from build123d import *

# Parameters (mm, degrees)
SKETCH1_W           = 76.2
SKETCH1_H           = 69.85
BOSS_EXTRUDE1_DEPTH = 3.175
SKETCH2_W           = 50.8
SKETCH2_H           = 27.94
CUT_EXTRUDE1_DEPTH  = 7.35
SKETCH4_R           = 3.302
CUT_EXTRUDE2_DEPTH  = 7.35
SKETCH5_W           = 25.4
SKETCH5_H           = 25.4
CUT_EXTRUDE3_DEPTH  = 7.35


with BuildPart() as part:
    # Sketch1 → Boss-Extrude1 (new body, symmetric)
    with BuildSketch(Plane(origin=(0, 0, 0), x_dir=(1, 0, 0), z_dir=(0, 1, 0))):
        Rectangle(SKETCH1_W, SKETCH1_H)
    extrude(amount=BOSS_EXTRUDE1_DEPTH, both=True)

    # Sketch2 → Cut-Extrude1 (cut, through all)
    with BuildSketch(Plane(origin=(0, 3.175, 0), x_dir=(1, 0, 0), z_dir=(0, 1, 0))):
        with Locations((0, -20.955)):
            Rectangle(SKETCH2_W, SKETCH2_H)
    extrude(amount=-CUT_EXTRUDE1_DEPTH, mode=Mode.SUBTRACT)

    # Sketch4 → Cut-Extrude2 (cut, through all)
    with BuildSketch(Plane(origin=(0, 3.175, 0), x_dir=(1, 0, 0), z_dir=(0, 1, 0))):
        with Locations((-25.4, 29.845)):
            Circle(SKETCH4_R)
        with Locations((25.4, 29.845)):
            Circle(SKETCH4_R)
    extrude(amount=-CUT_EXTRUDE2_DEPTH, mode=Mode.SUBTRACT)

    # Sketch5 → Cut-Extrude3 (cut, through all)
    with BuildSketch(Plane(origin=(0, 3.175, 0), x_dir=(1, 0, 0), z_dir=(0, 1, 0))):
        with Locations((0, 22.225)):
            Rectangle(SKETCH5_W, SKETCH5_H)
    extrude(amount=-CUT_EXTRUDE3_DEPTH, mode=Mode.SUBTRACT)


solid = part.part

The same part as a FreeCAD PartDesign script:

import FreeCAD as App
import Part
import Sketcher
from FreeCAD import Vector
Q = App.Units.Quantity


def add_polygon(sketch, points):
    """Adds a closed chain of lines whose ends are joined by coincident constraints."""
    first, n = sketch.GeometryCount, len(points)
    for a, b in zip(points, points[1:] + points[:1]):
        sketch.addGeometry(Part.LineSegment(App.Vector(*a, 0), App.Vector(*b, 0)), False)
    for i in range(n):
        sketch.addConstraint(Sketcher.Constraint("Coincident", first + i, 2, first + (i + 1) % n, 1))

doc = App.newDocument("Part")
body = doc.addObject("PartDesign::Body", "Body")

# Sketch on XZ plane
sketch1 = body.newObject("Sketcher::SketchObject", "Sketch")
sketch1.AttachmentSupport = (doc.getObject("XZ_Plane"), [""])
sketch1.MapMode = "FlatFace"
add_polygon(sketch1, [(-38, -35), (-38, 35), (38, 35), (38, -35)])  # lines 0-3
sketch1.addConstraint(Sketcher.Constraint("Vertical", 0))
sketch1.addConstraint(Sketcher.Constraint("Horizontal", 1))
sketch1.addConstraint(Sketcher.Constraint("Vertical", 2))
sketch1.addConstraint(Sketcher.Constraint("Horizontal", 3))
sketch1.addConstraint(Sketcher.Constraint("Symmetric", 0, 2, 2, 2, -1, 1))
sketch1.addConstraint(Sketcher.Constraint("DistanceX", 1, 1, 1, 2, Q("3 in")))
sketch1.addConstraint(Sketcher.Constraint("DistanceY", 0, 1, 0, 2, Q("2.75 in")))
pad1 = body.newObject("PartDesign::Pad", "Pad")
pad1.Profile = sketch1
pad1.Length = Q("0.25 in")
pad1.Midplane = True

# Sketch on XZ plane
sketch2 = body.newObject("Sketcher::SketchObject", "Sketch001")
sketch2.AttachmentSupport = (doc.getObject("XZ_Plane"), [""])
sketch2.MapMode = "FlatFace"
sketch2.AttachmentOffset = App.Placement(Vector(0, 0, -0.125 * 25.4), App.Rotation())
add_polygon(sketch2, [(-25, 7), (-25, 35), (25, 35), (25, 7)])  # lines 0-3
sketch2.addConstraint(Sketcher.Constraint("Vertical", 0))
sketch2.addConstraint(Sketcher.Constraint("Horizontal", 1))
sketch2.addConstraint(Sketcher.Constraint("Vertical", 2))
sketch2.addConstraint(Sketcher.Constraint("Horizontal", 3))
sketch2.addConstraint(Sketcher.Constraint("DistanceX", 1, 1, 1, 2, Q("2 in")))
sketch2.addConstraint(Sketcher.Constraint("DistanceY", 0, 1, 0, 2, Q("1.1 in")))
sketch2.addConstraint(Sketcher.Constraint("DistanceX", 0, 2, -1, 1, Q("1 in")))
sketch2.addConstraint(Sketcher.Constraint("DistanceY", -1, 1, 0, 2, Q("1.375 in")))
pocket1 = body.newObject("PartDesign::Pocket", "Pocket")
pocket1.Profile = sketch2
pocket1.Type = "ThroughAll"
pocket1.Reversed = True

# Sketch on XZ plane
sketch3 = body.newObject("Sketcher::SketchObject", "Sketch002")
sketch3.AttachmentSupport = (doc.getObject("XZ_Plane"), [""])
sketch3.MapMode = "FlatFace"
sketch3.AttachmentOffset = App.Placement(Vector(0, 0, -0.125 * 25.4), App.Rotation())
sketch3.addGeometry(Part.Circle(Vector(-25.4, -29.8, 0), Vector(0, 0, 1), 3.3), False)
sketch3.addGeometry(Part.Circle(Vector(25.4, -29.8, 0), Vector(0, 0, 1), 3.3), False)
sketch3.addConstraint(Sketcher.Constraint("Equal", 0, 1))
sketch3.addConstraint(Sketcher.Constraint("Symmetric", 0, 3, 1, 3, -2))
sketch3.addConstraint(Sketcher.Constraint("Diameter", 0, Q("0.26 in")))
sketch3.addConstraint(Sketcher.Constraint("DistanceX", 0, 3, -1, 1, Q("1 in")))
sketch3.addConstraint(Sketcher.Constraint("DistanceY", 0, 3, -1, 1, Q("1.175 in")))
pocket2 = body.newObject("PartDesign::Pocket", "Pocket001")
pocket2.Profile = sketch3
pocket2.Type = "ThroughAll"
pocket2.Reversed = True

# Sketch on XZ plane
sketch4 = body.newObject("Sketcher::SketchObject", "Sketch003")
sketch4.AttachmentSupport = (doc.getObject("XZ_Plane"), [""])
sketch4.MapMode = "FlatFace"
sketch4.AttachmentOffset = App.Placement(Vector(0, 0, -0.125 * 25.4), App.Rotation())
add_polygon(sketch4, [(-13, -35), (-13, -10), (13, -10), (13, -35)])  # lines 0-3
sketch4.addConstraint(Sketcher.Constraint("Vertical", 0))
sketch4.addConstraint(Sketcher.Constraint("Horizontal", 1))
sketch4.addConstraint(Sketcher.Constraint("Vertical", 2))
sketch4.addConstraint(Sketcher.Constraint("Horizontal", 3))
sketch4.addConstraint(Sketcher.Constraint("Equal", 3, 0))
sketch4.addConstraint(Sketcher.Constraint("DistanceX", 1, 1, 1, 2, Q("1 in")))
sketch4.addConstraint(Sketcher.Constraint("DistanceX", 0, 2, -1, 1, Q("0.5 in")))
sketch4.addConstraint(Sketcher.Constraint("DistanceY", 0, 2, -1, 1, Q("0.375 in")))
pocket3 = body.newObject("PartDesign::Pocket", "Pocket002")
pocket3.Profile = sketch4
pocket3.Type = "ThroughAll"
pocket3.Reversed = True

doc.recompute()
